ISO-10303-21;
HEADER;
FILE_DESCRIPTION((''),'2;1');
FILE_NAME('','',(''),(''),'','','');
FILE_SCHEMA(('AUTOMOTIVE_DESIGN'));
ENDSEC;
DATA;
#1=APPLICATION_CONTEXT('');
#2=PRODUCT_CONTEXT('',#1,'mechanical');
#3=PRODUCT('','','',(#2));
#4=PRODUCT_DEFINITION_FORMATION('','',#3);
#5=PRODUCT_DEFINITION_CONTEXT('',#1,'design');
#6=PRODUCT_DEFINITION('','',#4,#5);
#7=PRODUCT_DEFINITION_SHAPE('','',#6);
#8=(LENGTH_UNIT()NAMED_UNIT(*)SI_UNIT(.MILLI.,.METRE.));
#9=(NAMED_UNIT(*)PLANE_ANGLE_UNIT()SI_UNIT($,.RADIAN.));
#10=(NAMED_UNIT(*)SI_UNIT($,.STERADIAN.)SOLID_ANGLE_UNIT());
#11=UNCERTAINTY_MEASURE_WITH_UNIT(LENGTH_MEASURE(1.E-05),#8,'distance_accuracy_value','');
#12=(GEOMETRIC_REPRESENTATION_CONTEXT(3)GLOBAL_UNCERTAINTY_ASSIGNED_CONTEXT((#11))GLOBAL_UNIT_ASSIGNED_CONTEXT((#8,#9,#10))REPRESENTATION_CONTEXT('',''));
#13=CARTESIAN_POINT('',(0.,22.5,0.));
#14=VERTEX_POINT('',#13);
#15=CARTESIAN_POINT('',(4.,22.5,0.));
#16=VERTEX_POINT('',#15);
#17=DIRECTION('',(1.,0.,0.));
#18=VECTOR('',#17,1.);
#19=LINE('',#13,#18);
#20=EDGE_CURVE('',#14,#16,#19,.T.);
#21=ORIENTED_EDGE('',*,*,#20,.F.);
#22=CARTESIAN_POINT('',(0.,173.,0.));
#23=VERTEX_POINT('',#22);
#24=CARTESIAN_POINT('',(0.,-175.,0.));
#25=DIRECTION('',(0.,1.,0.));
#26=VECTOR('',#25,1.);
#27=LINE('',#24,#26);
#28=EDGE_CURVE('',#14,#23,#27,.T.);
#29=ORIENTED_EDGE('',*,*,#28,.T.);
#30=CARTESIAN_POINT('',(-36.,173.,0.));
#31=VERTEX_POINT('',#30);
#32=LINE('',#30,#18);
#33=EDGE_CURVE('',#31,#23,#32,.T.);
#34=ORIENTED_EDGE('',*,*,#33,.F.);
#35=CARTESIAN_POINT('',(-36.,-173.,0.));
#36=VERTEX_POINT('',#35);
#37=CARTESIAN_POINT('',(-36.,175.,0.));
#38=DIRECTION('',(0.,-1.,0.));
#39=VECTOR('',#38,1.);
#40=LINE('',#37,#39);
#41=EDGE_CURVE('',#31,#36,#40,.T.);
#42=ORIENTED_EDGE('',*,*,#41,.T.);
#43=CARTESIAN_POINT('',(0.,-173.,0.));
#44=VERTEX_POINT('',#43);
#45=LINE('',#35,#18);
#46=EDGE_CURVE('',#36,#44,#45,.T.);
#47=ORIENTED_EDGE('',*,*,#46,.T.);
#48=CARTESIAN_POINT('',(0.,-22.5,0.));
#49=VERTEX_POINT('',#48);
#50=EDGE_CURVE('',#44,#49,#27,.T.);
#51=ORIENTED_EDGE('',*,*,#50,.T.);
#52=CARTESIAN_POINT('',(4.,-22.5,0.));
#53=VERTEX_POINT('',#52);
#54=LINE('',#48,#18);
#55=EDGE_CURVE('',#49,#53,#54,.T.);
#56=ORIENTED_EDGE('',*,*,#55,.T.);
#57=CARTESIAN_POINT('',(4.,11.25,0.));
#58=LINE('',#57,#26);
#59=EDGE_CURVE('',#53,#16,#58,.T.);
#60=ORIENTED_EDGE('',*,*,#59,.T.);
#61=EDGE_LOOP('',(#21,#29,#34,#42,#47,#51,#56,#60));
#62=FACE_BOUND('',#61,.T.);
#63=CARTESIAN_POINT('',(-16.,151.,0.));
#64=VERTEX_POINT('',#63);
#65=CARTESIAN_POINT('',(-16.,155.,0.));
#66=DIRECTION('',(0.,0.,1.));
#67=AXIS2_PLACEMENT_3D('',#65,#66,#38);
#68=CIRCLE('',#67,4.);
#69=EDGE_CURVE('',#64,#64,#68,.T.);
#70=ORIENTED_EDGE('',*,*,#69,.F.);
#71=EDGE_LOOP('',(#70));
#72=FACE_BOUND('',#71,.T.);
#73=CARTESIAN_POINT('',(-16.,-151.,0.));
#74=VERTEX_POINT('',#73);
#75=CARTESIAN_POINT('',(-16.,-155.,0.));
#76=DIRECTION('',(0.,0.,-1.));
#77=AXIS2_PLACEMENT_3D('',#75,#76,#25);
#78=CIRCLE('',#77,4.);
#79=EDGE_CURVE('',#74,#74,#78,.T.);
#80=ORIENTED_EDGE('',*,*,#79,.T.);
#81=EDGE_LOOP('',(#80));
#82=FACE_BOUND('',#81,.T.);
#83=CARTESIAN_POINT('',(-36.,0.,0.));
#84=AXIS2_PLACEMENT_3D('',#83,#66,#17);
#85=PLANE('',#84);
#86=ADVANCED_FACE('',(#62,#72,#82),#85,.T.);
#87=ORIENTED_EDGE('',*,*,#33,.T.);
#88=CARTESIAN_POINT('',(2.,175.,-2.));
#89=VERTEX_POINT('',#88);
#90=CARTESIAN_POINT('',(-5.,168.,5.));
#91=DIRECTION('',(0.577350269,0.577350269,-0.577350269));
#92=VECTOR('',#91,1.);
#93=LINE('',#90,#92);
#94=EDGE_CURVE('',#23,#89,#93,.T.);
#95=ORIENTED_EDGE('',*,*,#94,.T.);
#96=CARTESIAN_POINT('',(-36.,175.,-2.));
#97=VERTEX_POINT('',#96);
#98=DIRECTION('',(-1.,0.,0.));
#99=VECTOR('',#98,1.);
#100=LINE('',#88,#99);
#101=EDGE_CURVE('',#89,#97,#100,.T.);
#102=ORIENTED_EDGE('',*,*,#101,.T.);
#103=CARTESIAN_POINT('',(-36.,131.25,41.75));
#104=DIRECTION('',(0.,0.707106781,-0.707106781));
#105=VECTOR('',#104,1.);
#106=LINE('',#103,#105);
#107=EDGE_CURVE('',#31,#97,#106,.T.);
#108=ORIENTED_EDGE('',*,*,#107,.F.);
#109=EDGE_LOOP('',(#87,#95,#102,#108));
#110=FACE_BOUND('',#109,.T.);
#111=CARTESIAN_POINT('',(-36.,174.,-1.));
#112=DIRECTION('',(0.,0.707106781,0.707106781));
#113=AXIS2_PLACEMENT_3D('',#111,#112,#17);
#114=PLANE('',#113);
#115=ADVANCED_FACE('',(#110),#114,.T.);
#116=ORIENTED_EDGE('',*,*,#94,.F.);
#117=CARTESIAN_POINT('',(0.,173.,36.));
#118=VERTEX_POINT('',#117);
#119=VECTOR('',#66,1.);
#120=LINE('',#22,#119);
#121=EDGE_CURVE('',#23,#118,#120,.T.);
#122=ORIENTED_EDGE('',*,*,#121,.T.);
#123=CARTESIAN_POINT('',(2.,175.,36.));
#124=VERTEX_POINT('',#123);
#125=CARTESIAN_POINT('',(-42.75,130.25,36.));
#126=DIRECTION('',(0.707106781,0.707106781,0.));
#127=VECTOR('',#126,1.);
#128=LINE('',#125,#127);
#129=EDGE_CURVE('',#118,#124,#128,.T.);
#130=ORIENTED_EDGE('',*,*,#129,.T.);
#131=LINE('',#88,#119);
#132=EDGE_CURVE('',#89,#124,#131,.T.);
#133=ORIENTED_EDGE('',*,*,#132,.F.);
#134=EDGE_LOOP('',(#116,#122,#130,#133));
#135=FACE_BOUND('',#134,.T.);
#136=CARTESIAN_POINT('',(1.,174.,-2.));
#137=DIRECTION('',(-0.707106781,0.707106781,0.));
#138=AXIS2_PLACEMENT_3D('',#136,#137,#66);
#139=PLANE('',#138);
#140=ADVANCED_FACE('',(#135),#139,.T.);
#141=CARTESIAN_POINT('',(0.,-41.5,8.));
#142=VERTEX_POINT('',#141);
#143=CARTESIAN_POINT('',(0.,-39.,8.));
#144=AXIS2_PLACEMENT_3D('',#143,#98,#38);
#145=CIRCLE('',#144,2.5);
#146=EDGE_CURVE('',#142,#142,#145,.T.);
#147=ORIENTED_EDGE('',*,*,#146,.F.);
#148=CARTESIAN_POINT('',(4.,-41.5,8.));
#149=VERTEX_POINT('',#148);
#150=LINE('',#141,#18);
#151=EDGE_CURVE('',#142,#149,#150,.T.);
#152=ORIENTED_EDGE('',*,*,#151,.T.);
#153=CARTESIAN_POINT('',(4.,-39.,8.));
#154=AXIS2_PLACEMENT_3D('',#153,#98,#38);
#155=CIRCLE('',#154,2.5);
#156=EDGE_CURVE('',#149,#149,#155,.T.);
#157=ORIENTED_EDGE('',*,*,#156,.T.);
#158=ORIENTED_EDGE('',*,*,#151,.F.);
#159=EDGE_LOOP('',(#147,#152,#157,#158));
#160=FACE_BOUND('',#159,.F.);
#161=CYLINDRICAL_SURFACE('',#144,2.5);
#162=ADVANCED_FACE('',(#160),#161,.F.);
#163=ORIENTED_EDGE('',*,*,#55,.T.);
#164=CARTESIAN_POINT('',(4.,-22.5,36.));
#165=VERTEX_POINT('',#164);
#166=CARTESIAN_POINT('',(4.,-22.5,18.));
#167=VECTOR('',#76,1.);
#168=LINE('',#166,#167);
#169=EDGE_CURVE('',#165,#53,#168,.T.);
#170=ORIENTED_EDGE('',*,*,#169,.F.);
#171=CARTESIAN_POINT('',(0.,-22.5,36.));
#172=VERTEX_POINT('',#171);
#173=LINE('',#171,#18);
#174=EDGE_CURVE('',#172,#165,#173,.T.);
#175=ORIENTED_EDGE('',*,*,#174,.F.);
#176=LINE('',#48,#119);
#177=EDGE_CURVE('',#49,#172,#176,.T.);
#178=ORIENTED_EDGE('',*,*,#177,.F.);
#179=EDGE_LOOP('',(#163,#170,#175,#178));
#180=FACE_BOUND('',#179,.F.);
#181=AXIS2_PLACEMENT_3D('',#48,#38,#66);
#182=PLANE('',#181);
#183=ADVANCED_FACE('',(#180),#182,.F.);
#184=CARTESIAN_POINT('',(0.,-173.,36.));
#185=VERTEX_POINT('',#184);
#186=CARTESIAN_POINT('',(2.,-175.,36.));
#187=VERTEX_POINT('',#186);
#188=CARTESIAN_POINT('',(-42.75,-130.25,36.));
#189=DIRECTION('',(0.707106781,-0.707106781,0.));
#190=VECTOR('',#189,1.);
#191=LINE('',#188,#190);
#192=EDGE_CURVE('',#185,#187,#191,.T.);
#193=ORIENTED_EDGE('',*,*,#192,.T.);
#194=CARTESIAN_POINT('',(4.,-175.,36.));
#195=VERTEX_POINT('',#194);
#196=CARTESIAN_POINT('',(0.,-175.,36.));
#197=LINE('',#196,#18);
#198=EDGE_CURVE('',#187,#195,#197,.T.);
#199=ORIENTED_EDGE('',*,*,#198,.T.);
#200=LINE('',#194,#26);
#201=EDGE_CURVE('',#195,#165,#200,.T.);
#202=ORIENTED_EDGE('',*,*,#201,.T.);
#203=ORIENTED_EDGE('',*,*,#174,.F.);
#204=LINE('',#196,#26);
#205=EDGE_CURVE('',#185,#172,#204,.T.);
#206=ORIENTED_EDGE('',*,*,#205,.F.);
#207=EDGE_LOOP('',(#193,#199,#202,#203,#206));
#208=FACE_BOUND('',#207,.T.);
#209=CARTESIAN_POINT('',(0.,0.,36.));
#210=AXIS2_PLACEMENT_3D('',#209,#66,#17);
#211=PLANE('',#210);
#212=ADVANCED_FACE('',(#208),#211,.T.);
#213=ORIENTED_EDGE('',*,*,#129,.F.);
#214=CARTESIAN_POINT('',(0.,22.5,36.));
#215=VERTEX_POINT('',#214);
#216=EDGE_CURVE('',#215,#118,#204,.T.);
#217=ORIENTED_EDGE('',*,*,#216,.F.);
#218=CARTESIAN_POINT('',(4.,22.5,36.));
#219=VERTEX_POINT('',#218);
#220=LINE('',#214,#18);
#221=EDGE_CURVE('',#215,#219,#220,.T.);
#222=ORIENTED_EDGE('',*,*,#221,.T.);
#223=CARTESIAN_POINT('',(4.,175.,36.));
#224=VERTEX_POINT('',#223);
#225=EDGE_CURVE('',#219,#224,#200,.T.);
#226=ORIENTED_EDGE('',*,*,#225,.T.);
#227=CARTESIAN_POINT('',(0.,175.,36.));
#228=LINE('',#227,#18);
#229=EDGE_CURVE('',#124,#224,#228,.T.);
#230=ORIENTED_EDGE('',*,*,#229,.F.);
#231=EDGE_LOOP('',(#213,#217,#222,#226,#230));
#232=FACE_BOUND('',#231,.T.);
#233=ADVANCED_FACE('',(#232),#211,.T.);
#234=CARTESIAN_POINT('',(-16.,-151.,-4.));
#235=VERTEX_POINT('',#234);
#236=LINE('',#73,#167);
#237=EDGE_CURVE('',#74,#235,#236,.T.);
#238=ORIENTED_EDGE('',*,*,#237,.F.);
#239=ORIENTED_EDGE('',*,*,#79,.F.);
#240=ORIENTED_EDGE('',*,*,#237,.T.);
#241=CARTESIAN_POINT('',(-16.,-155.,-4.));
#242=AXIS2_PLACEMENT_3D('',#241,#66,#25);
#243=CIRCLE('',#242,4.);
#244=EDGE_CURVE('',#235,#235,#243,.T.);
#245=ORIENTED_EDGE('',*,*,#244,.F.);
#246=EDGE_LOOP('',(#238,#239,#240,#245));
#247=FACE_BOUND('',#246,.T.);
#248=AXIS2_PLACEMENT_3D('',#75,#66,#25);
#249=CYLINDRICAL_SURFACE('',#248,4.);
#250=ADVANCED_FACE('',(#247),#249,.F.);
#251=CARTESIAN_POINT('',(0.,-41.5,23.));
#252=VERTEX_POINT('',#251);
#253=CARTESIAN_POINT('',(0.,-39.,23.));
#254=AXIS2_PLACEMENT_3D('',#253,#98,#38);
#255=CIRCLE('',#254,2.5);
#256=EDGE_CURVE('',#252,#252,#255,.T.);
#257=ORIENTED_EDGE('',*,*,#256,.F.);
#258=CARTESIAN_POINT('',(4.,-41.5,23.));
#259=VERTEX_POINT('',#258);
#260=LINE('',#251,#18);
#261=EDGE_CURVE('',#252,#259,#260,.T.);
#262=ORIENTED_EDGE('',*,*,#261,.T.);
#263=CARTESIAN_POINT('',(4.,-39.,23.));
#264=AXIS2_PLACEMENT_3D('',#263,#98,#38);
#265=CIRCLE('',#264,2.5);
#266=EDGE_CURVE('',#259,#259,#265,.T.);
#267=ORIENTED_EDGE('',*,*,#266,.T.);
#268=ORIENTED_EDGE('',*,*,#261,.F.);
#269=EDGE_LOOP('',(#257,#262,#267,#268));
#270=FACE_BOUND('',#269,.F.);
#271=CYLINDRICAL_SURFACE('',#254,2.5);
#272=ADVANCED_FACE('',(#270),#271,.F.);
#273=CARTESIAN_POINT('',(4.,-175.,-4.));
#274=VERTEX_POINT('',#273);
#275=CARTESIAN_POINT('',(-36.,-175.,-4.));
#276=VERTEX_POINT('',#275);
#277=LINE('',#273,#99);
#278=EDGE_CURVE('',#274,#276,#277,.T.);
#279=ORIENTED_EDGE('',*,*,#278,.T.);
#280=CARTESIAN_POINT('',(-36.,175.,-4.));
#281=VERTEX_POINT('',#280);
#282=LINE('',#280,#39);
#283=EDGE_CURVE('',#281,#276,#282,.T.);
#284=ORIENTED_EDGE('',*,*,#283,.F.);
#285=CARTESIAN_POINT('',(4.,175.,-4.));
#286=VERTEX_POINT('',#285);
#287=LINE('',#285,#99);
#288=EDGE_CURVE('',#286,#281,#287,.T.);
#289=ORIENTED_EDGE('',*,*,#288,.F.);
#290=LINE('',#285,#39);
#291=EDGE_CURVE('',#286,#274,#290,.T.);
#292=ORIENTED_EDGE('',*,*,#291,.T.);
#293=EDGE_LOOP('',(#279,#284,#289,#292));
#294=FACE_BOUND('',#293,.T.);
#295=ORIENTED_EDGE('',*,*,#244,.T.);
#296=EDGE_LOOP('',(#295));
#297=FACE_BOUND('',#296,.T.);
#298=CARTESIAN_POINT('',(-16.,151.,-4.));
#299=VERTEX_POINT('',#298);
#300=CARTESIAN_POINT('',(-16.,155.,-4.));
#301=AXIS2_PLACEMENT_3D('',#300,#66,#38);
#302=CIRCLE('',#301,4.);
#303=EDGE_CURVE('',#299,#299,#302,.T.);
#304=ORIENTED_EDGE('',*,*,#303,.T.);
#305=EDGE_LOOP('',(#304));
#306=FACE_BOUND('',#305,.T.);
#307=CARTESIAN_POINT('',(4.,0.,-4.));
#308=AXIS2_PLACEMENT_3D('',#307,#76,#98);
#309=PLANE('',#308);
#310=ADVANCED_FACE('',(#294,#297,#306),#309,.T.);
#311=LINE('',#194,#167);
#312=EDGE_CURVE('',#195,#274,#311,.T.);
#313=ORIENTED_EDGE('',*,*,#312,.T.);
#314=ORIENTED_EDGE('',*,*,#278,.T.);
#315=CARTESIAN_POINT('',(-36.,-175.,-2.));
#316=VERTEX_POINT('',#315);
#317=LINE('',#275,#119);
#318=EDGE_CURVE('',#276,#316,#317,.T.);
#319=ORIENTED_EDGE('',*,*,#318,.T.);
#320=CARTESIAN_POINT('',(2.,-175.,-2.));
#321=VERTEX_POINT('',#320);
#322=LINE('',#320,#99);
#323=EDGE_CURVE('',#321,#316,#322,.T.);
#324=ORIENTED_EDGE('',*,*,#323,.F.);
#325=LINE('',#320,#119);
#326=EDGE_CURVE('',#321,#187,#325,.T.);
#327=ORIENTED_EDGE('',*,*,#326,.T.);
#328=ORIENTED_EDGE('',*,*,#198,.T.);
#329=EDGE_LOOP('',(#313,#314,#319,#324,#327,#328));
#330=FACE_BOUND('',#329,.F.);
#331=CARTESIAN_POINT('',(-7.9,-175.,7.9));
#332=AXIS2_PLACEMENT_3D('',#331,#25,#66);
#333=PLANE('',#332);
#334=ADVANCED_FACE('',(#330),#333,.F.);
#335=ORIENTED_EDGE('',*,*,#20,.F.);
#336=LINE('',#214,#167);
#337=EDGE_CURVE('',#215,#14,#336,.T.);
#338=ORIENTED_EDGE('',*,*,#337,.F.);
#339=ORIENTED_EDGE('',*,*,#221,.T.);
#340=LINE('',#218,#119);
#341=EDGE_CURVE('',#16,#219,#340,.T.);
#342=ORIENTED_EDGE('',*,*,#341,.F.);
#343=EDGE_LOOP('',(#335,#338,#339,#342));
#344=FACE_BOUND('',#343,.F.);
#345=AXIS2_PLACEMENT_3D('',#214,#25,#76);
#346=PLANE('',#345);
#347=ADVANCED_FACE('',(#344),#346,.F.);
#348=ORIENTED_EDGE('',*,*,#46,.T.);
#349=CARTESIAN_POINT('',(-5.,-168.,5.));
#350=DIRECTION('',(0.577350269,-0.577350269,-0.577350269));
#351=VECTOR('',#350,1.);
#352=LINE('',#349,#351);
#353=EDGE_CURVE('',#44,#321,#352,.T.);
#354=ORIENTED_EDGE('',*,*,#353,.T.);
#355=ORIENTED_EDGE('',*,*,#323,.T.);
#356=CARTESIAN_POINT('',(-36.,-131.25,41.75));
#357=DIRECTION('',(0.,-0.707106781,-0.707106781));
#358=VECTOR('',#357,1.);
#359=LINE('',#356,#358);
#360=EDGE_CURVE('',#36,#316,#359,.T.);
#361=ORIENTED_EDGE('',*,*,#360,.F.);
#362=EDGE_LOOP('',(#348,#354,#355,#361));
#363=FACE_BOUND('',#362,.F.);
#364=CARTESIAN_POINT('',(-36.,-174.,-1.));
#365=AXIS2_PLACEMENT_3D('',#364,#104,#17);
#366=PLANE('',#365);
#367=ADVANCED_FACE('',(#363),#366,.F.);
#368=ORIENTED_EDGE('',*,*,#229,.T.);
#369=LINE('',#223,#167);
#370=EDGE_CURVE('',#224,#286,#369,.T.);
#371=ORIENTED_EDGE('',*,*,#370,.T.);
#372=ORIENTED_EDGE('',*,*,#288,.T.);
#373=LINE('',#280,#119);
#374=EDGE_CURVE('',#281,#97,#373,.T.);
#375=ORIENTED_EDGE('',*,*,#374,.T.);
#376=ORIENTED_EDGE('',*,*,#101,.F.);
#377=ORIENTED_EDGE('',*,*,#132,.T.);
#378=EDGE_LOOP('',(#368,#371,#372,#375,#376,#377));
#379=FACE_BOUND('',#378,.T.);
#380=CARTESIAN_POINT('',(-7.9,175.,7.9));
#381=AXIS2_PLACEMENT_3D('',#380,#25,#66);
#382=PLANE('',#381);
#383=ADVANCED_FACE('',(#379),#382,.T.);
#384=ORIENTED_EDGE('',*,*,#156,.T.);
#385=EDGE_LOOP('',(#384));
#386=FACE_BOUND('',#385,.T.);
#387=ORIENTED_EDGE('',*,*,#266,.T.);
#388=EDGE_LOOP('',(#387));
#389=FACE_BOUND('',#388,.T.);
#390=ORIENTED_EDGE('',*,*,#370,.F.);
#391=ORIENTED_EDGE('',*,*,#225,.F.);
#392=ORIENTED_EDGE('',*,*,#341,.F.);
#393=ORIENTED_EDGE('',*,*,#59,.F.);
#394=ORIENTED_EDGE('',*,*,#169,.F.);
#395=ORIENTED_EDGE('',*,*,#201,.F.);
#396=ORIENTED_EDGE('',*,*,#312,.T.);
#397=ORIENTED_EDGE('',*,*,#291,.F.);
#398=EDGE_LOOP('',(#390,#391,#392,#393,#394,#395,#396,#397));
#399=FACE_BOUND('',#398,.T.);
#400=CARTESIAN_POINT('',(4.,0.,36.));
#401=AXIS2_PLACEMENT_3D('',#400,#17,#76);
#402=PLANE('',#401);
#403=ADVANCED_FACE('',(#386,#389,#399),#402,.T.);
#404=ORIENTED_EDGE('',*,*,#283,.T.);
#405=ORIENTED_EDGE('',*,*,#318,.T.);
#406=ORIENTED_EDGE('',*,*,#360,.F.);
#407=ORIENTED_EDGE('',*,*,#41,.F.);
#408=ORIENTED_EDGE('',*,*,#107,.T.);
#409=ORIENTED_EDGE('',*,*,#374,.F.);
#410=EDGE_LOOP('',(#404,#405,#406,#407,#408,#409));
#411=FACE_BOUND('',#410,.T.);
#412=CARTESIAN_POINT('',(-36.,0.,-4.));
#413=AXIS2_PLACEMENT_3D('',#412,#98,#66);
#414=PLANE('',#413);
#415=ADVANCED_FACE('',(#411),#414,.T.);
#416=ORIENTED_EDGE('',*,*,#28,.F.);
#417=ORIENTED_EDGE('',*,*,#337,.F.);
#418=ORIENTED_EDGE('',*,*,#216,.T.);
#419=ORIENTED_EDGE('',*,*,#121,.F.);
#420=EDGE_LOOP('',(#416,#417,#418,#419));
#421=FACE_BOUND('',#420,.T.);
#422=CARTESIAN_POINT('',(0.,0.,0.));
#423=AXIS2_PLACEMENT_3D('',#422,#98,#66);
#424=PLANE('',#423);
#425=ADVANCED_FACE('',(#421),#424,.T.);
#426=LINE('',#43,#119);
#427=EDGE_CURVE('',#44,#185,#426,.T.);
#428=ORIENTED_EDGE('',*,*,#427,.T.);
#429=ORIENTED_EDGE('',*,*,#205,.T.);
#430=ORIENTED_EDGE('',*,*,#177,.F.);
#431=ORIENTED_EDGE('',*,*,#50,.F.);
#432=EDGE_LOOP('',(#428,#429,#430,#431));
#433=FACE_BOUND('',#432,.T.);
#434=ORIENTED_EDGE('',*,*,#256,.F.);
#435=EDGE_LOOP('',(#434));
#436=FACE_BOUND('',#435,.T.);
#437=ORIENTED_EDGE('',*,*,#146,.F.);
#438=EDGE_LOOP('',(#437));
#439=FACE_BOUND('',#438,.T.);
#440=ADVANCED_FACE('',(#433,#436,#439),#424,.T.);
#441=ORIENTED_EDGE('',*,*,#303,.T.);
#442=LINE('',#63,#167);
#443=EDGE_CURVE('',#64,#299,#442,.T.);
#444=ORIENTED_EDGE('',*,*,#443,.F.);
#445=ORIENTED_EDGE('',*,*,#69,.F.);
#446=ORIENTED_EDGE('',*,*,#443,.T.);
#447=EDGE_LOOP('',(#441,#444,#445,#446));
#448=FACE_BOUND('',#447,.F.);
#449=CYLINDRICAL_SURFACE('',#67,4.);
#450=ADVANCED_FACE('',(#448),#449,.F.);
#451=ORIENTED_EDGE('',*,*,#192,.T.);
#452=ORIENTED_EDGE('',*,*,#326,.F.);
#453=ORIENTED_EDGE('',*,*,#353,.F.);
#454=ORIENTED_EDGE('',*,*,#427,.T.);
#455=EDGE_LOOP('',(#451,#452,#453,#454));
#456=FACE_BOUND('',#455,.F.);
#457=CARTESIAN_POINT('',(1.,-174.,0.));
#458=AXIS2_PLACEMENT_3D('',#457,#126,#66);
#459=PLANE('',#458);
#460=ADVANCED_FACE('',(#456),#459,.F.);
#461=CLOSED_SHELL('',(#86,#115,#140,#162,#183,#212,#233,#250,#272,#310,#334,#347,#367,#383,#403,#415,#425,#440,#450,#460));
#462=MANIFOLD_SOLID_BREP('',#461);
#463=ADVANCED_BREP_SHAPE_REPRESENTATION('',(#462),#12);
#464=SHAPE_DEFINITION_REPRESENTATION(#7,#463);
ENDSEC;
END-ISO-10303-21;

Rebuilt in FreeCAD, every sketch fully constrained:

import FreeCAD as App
import Part
import Sketcher

V = App.Vector


def edges_at(feature, points):
    """Names of the edges that pass closest to the given points."""
    edges = feature.Shape.Edges
    near = lambda p: min(range(len(edges)), key=lambda i: edges[i].distToShape(Part.Vertex(*p))[0])
    return sorted({f"Edge{near(p) + 1}" for p in points})

doc = App.newDocument("Part")
body = doc.addObject("PartDesign::Body", "Body")

sketch1 = body.newObject("Sketcher::SketchObject", "Sketch")
sketch1.AttachmentSupport = (doc.getObject("XZ_Plane"), [""])
sketch1.MapMode = "FlatFace"
sketch1.addGeometry([
    Part.LineSegment(V(0, 0, 0), V(-36, 0, 0)),
    Part.LineSegment(V(-36, 0, 0), V(-36, -4, 0)),
    Part.LineSegment(V(-36, -4, 0), V(4, -4, 0)),
    Part.LineSegment(V(4, -4, 0), V(4, 36, 0)),
    Part.LineSegment(V(4, 36, 0), V(0, 36, 0)),
    Part.LineSegment(V(0, 36, 0), V(0, 0, 0)),
], False)
sketch1.addConstraint([
    Sketcher.Constraint("Coincident", 0, 2, 1, 1),
    Sketcher.Constraint("Coincident", 1, 2, 2, 1),
    Sketcher.Constraint("Coincident", 2, 2, 3, 1),
    Sketcher.Constraint("Coincident", 3, 2, 4, 1),
    Sketcher.Constraint("Coincident", 4, 2, 5, 1),
    Sketcher.Constraint("Coincident", 5, 2, 0, 1),
    Sketcher.Constraint("Horizontal", 0),
    Sketcher.Constraint("Vertical", 1),
    Sketcher.Constraint("Horizontal", 2),
    Sketcher.Constraint("Vertical", 3),
    Sketcher.Constraint("Horizontal", 4),
    Sketcher.Constraint("Vertical", 5),
    Sketcher.Constraint("Coincident", 5, 2, -1, 1),
    Sketcher.Constraint("Equal", 4, 1),
    Sketcher.Constraint("Equal", 2, 3),
    Sketcher.Constraint("DistanceX", 0, 2, 0, 1, 36.0),
    Sketcher.Constraint("DistanceX", 2, 1, 2, 2, 40.0),
])
pad1 = body.newObject("PartDesign::Pad", "Pad")
pad1.Profile = sketch1
pad1.Length = 350
pad1.Midplane = True

sketch2 = body.newObject("Sketcher::SketchObject", "Sketch001")
sketch2.AttachmentSupport = (doc.getObject("XY_Plane"), [""])
sketch2.MapMode = "FlatFace"
sketch2.addGeometry(Part.Circle(V(-16, 155, 0), V(0, 0, 1), 4), False)
sketch2.addConstraint([
    Sketcher.Constraint("Diameter", 0, 8.0),
    Sketcher.Constraint("DistanceY", -1, 1, 0, 3, 155.0),
    Sketcher.Constraint("DistanceX", 0, 3, -1, 1, 16.0),
])
pocket1 = body.newObject("PartDesign::Pocket", "Pocket")
pocket1.Profile = sketch2
pocket1.Type = "ThroughAll"
doc.recompute()

mirrored = body.newObject("PartDesign::Mirrored", "Mirrored")
mirrored.Originals = [pocket1]
mirrored.MirrorPlane = (doc.getObject("XZ_Plane"), [""])
body.Tip = mirrored

sketch3 = body.newObject("Sketcher::SketchObject", "Sketch002")
sketch3.AttachmentSupport = (doc.getObject("YZ_Plane"), [""])
sketch3.MapMode = "FlatFace"
sketch3.addGeometry([
    Part.LineSegment(V(22, 36, 0), V(22, 0, 0)),
    Part.LineSegment(V(22, 0, 0), V(-22, 0, 0)),
    Part.LineSegment(V(-22, 0, 0), V(-22, 36, 0)),
    Part.LineSegment(V(-22, 36, 0), V(22, 36, 0)),
], False)
sketch3.addConstraint([
    Sketcher.Constraint("Coincident", 0, 2, 1, 1),
    Sketcher.Constraint("Coincident", 1, 2, 2, 1),
    Sketcher.Constraint("Coincident", 2, 2, 3, 1),
    Sketcher.Constraint("Coincident", 3, 2, 0, 1),
    Sketcher.Constraint("Vertical", 0),
    Sketcher.Constraint("Horizontal", 1),
    Sketcher.Constraint("Vertical", 2),
    Sketcher.Constraint("Horizontal", 3),
    Sketcher.Constraint("Symmetric", 0, 2, 1, 2, -1, 1),
    Sketcher.Constraint("DistanceX", -1, 1, 0, 2, 22.5),
    Sketcher.Constraint("DistanceY", 0, 2, 0, 1, 36.0),
])
pocket2 = body.newObject("PartDesign::Pocket", "Pocket001")
pocket2.Profile = sketch3
pocket2.Type = "ThroughAll"
pocket2.Reversed = True
doc.recompute()

chamfer = body.newObject("PartDesign::Chamfer", "Chamfer")
chamfer.Base = (pocket2, edges_at(pocket2, [(-18, -175, 0), (-18, 175, 0)]))
chamfer.Size = 2
doc.recompute()

chamfer2 = body.newObject("PartDesign::Chamfer", "Chamfer001")
chamfer2.Base = (chamfer, edges_at(chamfer, [(0, -175, 17), (0, 175, 17)]))
chamfer2.Size = 2

sketch4 = body.newObject("Sketcher::SketchObject", "Sketch003")
sketch4.AttachmentSupport = (doc.getObject("YZ_Plane"), [""])
sketch4.MapMode = "FlatFace"
sketch4.addGeometry([
    Part.Circle(V(-39, 23, 0), V(0, 0, 1), 2.5),
    Part.Circle(V(-39, 8, 0), V(0, 0, 1), 2.5),
], False)
sketch4.addConstraint([
    Sketcher.Constraint("Equal", 0, 1),
    Sketcher.Constraint("Vertical", 0, 3, 1, 3),
    Sketcher.Constraint("Diameter", 0, 5.0),
    Sketcher.Constraint("DistanceX", 0, 3, -1, 1, 39.0),
    Sketcher.Constraint("DistanceY", -1, 1, 0, 3, 23.0),
    Sketcher.Constraint("DistanceY", -1, 1, 1, 3, 8.0),
])
pocket3 = body.newObject("PartDesign::Pocket", "Pocket002")
pocket3.Profile = sketch4
pocket3.Type = "ThroughAll"
pocket3.Reversed = True

doc.recompute()
